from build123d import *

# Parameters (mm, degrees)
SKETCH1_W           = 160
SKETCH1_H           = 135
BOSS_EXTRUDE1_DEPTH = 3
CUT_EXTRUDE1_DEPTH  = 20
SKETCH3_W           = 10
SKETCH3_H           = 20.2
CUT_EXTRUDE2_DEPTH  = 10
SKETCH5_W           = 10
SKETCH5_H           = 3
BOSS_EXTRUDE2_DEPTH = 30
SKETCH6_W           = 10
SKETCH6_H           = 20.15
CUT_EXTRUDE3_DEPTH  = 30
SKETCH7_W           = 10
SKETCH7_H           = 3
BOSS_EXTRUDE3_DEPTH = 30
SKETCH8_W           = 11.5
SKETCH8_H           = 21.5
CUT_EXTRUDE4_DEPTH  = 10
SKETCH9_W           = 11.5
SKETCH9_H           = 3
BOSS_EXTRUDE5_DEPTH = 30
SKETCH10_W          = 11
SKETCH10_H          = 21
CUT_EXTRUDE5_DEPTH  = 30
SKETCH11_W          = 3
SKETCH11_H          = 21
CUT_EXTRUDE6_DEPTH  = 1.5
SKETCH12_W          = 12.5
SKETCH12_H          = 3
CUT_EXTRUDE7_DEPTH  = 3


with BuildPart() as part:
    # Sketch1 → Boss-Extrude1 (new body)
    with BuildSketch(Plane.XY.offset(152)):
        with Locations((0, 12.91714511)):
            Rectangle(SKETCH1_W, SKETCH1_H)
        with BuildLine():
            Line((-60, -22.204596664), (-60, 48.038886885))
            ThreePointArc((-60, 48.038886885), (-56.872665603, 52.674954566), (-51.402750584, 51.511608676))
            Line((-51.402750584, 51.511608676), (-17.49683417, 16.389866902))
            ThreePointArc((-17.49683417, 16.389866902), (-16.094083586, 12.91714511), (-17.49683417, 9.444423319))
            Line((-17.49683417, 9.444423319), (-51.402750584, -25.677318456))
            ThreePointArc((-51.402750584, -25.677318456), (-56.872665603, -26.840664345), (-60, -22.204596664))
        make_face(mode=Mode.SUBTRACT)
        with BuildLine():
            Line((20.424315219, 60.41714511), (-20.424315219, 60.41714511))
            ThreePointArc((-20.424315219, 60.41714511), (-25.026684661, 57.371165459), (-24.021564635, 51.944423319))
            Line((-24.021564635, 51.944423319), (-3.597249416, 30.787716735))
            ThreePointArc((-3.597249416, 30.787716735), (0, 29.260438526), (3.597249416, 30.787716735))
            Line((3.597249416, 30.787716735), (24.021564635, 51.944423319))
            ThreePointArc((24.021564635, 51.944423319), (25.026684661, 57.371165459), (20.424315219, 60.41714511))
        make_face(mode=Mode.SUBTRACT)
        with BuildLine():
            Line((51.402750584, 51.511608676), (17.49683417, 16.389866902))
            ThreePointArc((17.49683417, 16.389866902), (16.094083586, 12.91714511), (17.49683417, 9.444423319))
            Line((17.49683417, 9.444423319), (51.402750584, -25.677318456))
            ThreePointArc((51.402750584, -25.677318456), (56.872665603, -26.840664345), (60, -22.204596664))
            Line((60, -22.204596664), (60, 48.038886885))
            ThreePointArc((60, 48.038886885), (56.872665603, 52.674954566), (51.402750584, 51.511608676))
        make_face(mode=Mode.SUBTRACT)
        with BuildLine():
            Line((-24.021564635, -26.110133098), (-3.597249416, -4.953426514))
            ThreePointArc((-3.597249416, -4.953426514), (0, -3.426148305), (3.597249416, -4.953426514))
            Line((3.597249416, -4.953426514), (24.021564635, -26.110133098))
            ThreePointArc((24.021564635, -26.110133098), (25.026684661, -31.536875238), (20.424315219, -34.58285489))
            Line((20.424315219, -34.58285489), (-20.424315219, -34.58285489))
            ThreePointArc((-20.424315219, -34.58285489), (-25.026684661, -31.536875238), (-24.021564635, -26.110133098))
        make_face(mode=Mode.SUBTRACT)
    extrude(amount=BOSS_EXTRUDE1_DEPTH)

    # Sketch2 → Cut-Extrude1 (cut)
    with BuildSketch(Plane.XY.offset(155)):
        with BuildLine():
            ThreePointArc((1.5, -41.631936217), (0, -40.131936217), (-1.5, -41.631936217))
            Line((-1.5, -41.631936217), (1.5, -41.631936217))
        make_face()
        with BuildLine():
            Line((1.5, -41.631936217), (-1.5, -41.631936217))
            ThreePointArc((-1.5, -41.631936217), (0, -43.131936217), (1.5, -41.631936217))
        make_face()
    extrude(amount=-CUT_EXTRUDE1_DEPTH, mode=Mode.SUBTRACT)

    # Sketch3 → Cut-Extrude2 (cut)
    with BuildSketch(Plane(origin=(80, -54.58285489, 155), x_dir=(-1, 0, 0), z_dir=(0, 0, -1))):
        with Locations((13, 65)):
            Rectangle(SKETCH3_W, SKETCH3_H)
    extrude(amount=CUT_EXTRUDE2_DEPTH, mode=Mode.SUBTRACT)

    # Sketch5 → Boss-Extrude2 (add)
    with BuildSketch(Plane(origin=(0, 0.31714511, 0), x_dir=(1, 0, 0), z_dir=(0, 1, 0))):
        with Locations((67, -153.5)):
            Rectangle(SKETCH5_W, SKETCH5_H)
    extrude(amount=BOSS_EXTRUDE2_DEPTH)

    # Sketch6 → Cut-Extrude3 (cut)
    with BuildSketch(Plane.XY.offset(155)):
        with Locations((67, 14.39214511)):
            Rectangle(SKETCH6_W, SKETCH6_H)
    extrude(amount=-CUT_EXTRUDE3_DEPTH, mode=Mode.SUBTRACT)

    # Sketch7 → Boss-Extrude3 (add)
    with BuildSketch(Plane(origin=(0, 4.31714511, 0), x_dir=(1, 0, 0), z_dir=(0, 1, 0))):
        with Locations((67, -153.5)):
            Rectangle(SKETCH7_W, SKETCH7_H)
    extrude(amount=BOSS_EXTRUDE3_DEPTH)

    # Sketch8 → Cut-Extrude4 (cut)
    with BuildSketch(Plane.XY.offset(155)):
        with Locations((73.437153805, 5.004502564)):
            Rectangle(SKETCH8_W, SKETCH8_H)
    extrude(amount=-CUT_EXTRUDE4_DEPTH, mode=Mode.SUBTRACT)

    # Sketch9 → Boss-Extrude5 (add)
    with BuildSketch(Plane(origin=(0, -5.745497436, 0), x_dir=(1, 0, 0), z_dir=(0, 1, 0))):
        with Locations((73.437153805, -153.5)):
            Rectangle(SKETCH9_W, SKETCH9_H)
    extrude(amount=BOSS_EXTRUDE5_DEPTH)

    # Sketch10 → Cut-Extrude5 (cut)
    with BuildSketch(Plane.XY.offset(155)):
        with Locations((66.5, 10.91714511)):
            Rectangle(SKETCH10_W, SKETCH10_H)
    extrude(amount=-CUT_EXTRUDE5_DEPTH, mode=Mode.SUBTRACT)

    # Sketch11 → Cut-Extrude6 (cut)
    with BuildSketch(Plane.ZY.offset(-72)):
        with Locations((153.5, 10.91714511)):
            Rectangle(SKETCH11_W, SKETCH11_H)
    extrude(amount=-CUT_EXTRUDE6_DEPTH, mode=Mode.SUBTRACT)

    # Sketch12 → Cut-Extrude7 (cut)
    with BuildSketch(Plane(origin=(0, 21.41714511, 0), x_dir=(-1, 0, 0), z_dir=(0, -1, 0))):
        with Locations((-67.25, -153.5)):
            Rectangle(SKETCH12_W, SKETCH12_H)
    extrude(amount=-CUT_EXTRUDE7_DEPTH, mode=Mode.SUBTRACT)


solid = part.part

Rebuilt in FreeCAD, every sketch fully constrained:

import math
import FreeCAD as App
import Part
import Sketcher


def add_polygon(sketch, points):
    """Adds a closed chain of lines whose ends are joined by coincident constraints."""
    first, n = sketch.GeometryCount, len(points)
    for a, b in zip(points, points[1:] + points[:1]):
        sketch.addGeometry(Part.LineSegment(App.Vector(*a, 0), App.Vector(*b, 0)), False)
    for i in range(n):
        sketch.addConstraint(Sketcher.Constraint("Coincident", first + i, 2, first + (i + 1) % n, 1))

doc = App.newDocument("Part")
body = doc.addObject("PartDesign::Body", "Body")

sketch1 = body.newObject("Sketcher::SketchObject", "Sketch")
sketch1.AttachmentSupport = (doc.getObject("XY_Plane"), [""])
sketch1.MapMode = "FlatFace"
sketch1.AttachmentOffset = App.Placement(App.Vector(0, 0, 152), App.Rotation())
add_polygon(sketch1, [(-80, 80), (-80, -55), (80, -55), (80, 80)])
sketch1.addGeometry(Part.ArcOfCircle(Part.Circle(App.Vector(-20, -30, 0), App.Vector(0, 0, 1), 5), math.radians(136), math.radians(270)), False)
sketch1.addGeometry(Part.LineSegment(App.Vector(-24, -26, 0), App.Vector(-4, -5, 0)), False)
sketch1.addGeometry(Part.ArcOfCircle(Part.Circle(App.Vector(0, -8, 0), App.Vector(0, 0, 1), 5), math.radians(44), math.radians(136)), False)
sketch1.addGeometry(Part.LineSegment(App.Vector(4, -5, 0), App.Vector(24, -26, 0)), False)
sketch1.addGeometry(Part.ArcOfCircle(Part.Circle(App.Vector(20, -30, 0), App.Vector(0, 0, 1), 5), math.radians(-90), math.radians(44)), False)
sketch1.addGeometry(Part.LineSegment(App.Vector(20, -35, 0), App.Vector(-20, -35, 0)), False)
sketch1.addGeometry(Part.ArcOfCircle(Part.Circle(App.Vector(-55, -22, 0), App.Vector(0, 0, 1), 5), math.radians(180), math.radians(316)), False)
sketch1.addGeometry(Part.LineSegment(App.Vector(-60, -22, 0), App.Vector(-60, 48, 0)), False)
sketch1.addGeometry(Part.ArcOfCircle(Part.Circle(App.Vector(-55, 48, 0), App.Vector(0, 0, 1), 5), math.radians(44), math.radians(180)), False)
sketch1.addGeometry(Part.LineSegment(App.Vector(-51, 52, 0), App.Vector(-17, 16, 0)), False)
sketch1.addGeometry(Part.ArcOfCircle(Part.Circle(App.Vector(-21, 13, 0), App.Vector(0, 0, 1), 5), math.radians(-44), math.radians(44)), False)
sketch1.addGeometry(Part.LineSegment(App.Vector(-17, 9, 0), App.Vector(-51, -26, 0)), False)
sketch1.addGeometry(Part.LineSegment(App.Vector(-20, 60, 0), App.Vector(20, 60, 0)), False)
sketch1.addGeometry(Part.ArcOfCircle(Part.Circle(App.Vector(20, 55, 0), App.Vector(0, 0, 1), 5), math.radians(-44), math.radians(90)), False)
sketch1.addGeometry(Part.LineSegment(App.Vector(24, 52, 0), App.Vector(4, 31, 0)), False)
sketch1.addGeometry(Part.ArcOfCircle(Part.Circle(App.Vector(0, 34, 0), App.Vector(0, 0, 1), 5), math.radians(-136), math.radians(-44)), False)
sketch1.addGeometry(Part.LineSegment(App.Vector(-4, 31, 0), App.Vector(-24, 52, 0)), False)
sketch1.addGeometry(Part.ArcOfCircle(Part.Circle(App.Vector(-20, 55, 0), App.Vector(0, 0, 1), 5), math.radians(90), math.radians(224)), False)
sketch1.addGeometry(Part.LineSegment(App.Vector(17, 16, 0), App.Vector(51, 52, 0)), False)
sketch1.addGeometry(Part.ArcOfCircle(Part.Circle(App.Vector(55, 48, 0), App.Vector(0, 0, 1), 5), math.radians(0), math.radians(136)), False)
sketch1.addGeometry(Part.LineSegment(App.Vector(60, 48, 0), App.Vector(60, -22, 0)), False)
sketch1.addGeometry(Part.ArcOfCircle(Part.Circle(App.Vector(55, -22, 0), App.Vector(0, 0, 1), 5), math.radians(-136), math.radians(0)), False)
sketch1.addGeometry(Part.LineSegment(App.Vector(51, -26, 0), App.Vector(17, 9, 0)), False)
sketch1.addGeometry(Part.ArcOfCircle(Part.Circle(App.Vector(21, 13, 0), App.Vector(0, 0, 1), 5), math.radians(136), math.radians(224)), False)
sketch1.addConstraint([
    Sketcher.Constraint("Tangent", 4, 1, 5, 1),
    Sketcher.Constraint("Tangent", 5, 2, 6, 2),
    Sketcher.Constraint("Tangent", 6, 1, 7, 1),
    Sketcher.Constraint("Tangent", 7, 2, 8, 2),
    Sketcher.Constraint("Tangent", 8, 1, 9, 1),
    Sketcher.Constraint("Tangent", 9, 2, 4, 2),
    Sketcher.Constraint("Tangent", 10, 1, 11, 1),
    Sketcher.Constraint("Tangent", 11, 2, 12, 2),
    Sketcher.Constraint("Tangent", 12, 1, 13, 1),
    Sketcher.Constraint("Tangent", 13, 2, 14, 2),
    Sketcher.Constraint("Tangent", 14, 1, 15, 1),
    Sketcher.Constraint("Tangent", 15, 2, 10, 2),
    Sketcher.Constraint("Tangent", 16, 2, 17, 2),
    Sketcher.Constraint("Tangent", 17, 1, 18, 1),
    Sketcher.Constraint("Tangent", 18, 2, 19, 2),
    Sketcher.Constraint("Tangent", 19, 1, 20, 1),
    Sketcher.Constraint("Tangent", 20, 2, 21, 2),
    Sketcher.Constraint("Tangent", 21, 1, 16, 1),
    Sketcher.Constraint("Tangent", 22, 2, 23, 2),
    Sketcher.Constraint("Tangent", 23, 1, 24, 1),
    Sketcher.Constraint("Tangent", 24, 2, 25, 2),
    Sketcher.Constraint("Tangent", 25, 1, 26, 1),
    Sketcher.Constraint("Tangent", 26, 2, 27, 2),
    Sketcher.Constraint("Tangent", 27, 1, 22, 1),
    Sketcher.Constraint("Vertical", 0),
    Sketcher.Constraint("Horizontal", 1),
    Sketcher.Constraint("Vertical", 2),
    Sketcher.Constraint("Horizontal", 3),
    Sketcher.Constraint("Horizontal", 9),
    Sketcher.Constraint("Vertical", 11),
    Sketcher.Constraint("Horizontal", 16),
    Sketcher.Constraint("Vertical", 24),
    Sketcher.Constraint("Equal", 4, 6),
    Sketcher.Constraint("Equal", 6, 8),
    Sketcher.Constraint("Equal", 8, 10),
    Sketcher.Constraint("Equal", 10, 12),
    Sketcher.Constraint("Equal", 12, 14),
    Sketcher.Constraint("Equal", 14, 17),
    Sketcher.Constraint("Equal", 17, 19),
    Sketcher.Constraint("Equal", 19, 21),
    Sketcher.Constraint("Equal", 21, 23),
    Sketcher.Constraint("Equal", 23, 25),
    Sketcher.Constraint("Equal", 25, 27),
    Sketcher.Constraint("Symmetric", 12, 3, 23, 3, -2),
    Sketcher.Constraint("Symmetric", 14, 3, 27, 3, -2),
    Sketcher.Constraint("Symmetric", 5, 2, 6, 1, -2),
    Sketcher.Constraint("Symmetric", 18, 2, 19, 1, -2),
    Sketcher.Constraint("Parallel", 7, 13),
    Sketcher.Constraint("Parallel", 5, 15),
    Sketcher.Constraint("Parallel", 15, 18),
    Sketcher.Constraint("Parallel", 20, 26),
    Sketcher.Constraint("Vertical", 8, 3, 17, 3),
    Sketcher.Constraint("Radius", 4, 5.0),
    Sketcher.Constraint("DistanceX", 1, 1, 1, 2, 160.0),
    Sketcher.Constraint("DistanceY", 0, 2, 0, 1, 135.0),
    Sketcher.Constraint("DistanceX", 10, 3, -1, 1, 55.0),
    Sketcher.Constraint("DistanceX", 0, 2, -1, 1, 80.0),
    Sketcher.Constraint("DistanceY", 8, 3, 17, 3, 85.0),
    Sketcher.Constraint("DistanceY", 0, 2, 4, 3, 25.0),
    Sketcher.Constraint("DistanceY", 4, 3, 14, 3, 42.5),
    Sketcher.Constraint("DistanceX", 9, 2, 9, 1, 40.84863),
    Sketcher.Constraint("DistanceX", 14, 3, 8, 3, 41.518399),
    Sketcher.Constraint("DistanceX", 5, 2, 6, 1, 7.194499),
    Sketcher.Constraint("DistanceY", 6, 3, -1, 1, 8.426148),
])
pad1 = body.newObject("PartDesign::Pad", "Pad")
pad1.Profile = sketch1
pad1.Length = 3

sketch2 = body.newObject("Sketcher::SketchObject", "Sketch001")
sketch2.AttachmentSupport = (doc.getObject("XY_Plane"), [""])
sketch2.MapMode = "FlatFace"
sketch2.AttachmentOffset = App.Placement(App.Vector(0, 0, 155), App.Rotation())
sketch2.addGeometry(Part.Circle(App.Vector(0, -41.6, 0), App.Vector(0, 0, 1), 1.5), False)
sketch2.addConstraint([
    Sketcher.Constraint("PointOnObject", 0, 3, -2),
    Sketcher.Constraint("Diameter", 0, 3.0),
    Sketcher.Constraint("DistanceY", 0, 3, -1, 1, 41.631936),
])
pocket1 = body.newObject("PartDesign::Pocket", "Pocket")
pocket1.Profile = sketch2
pocket1.Length = 20

sketch3 = body.newObject("Sketcher::SketchObject", "Sketch002")
sketch3.AttachmentSupport = (doc.getObject("XY_Plane"), [""])
sketch3.MapMode = "FlatFace"
sketch3.AttachmentOffset = App.Placement(App.Vector(0, 0, 155), App.Rotation())
add_polygon(sketch3, [(72, 21), (72, 0), (62, 0), (62, 21)])
sketch3.addConstraint([
    Sketcher.Constraint("Vertical", 0),
    Sketcher.Constraint("Horizontal", 1),
    Sketcher.Constraint("Vertical", 2),
    Sketcher.Constraint("Horizontal", 3),
    Sketcher.Constraint("DistanceX", 1, 2, 1, 1, 10.0),
    Sketcher.Constraint("DistanceY", 0, 2, 0, 1, 20.2),
    Sketcher.Constraint("DistanceX", -1, 1, 0, 2, 72.0),
    Sketcher.Constraint("DistanceY", -1, 1, 0, 2, 0.317145),
])
pocket2 = body.newObject("PartDesign::Pocket", "Pocket001")
pocket2.Profile = sketch3
pocket2.Length = 10

sketch4 = body.newObject("Sketcher::SketchObject", "Sketch003")
sketch4.AttachmentSupport = (doc.getObject("XZ_Plane"), [""])
sketch4.MapMode = "FlatFace"
sketch4.AttachmentOffset = App.Placement(App.Vector(0, 0, -0.317145), App.Rotation())
add_polygon(sketch4, [(62, 152), (62, 155), (72, 155), (72, 152)])
sketch4.addConstraint([
    Sketcher.Constraint("Vertical", 0),
    Sketcher.Constraint("Horizontal", 1),
    Sketcher.Constraint("Vertical", 2),
    Sketcher.Constraint("Horizontal", 3),
    Sketcher.Constraint("DistanceX", 1, 1, 1, 2, 10.0),
    Sketcher.Constraint("DistanceY", 0, 1, 0, 2, 3.0),
    Sketcher.Constraint("DistanceX", -1, 1, 0, 2, 62.0),
    Sketcher.Constraint("DistanceY", -1, 1, 0, 2, 155.0),
])
pad2 = body.newObject("PartDesign::Pad", "Pad001")
pad2.Profile = sketch4
pad2.Length = 30
pad2.Reversed = True

sketch5 = body.newObject("Sketcher::SketchObject", "Sketch004")
sketch5.AttachmentSupport = (doc.getObject("XY_Plane"), [""])
sketch5.MapMode = "FlatFace"
sketch5.AttachmentOffset = App.Placement(App.Vector(0, 0, 155), App.Rotation())
add_polygon(sketch5, [(62, 24), (62, 4), (72, 4), (72, 24)])
sketch5.addConstraint([
    Sketcher.Constraint("Vertical", 0),
    Sketcher.Constraint("Horizontal", 1),
    Sketcher.Constraint("Vertical", 2),
    Sketcher.Constraint("Horizontal", 3),
    Sketcher.Constraint("DistanceX", 1, 1, 1, 2, 10.0),
    Sketcher.Constraint("DistanceX", -1, 1, 0, 2, 62.0),
    Sketcher.Constraint("DistanceY", 0, 2, 0, 1, 20.15),
    Sketcher.Constraint("DistanceY", -1, 1, 0, 2, 4.317145),
])
pocket3 = body.newObject("PartDesign::Pocket", "Pocket002")
pocket3.Profile = sketch5
pocket3.Length = 30

sketch6 = body.newObject("Sketcher::SketchObject", "Sketch005")
sketch6.AttachmentSupport = (doc.getObject("XZ_Plane"), [""])
sketch6.MapMode = "FlatFace"
sketch6.AttachmentOffset = App.Placement(App.Vector(0, 0, -4.317145), App.Rotation())
add_polygon(sketch6, [(62, 152), (62, 155), (72, 155), (72, 152)])
sketch6.addConstraint([
    Sketcher.Constraint("Vertical", 0),
    Sketcher.Constraint("Horizontal", 1),
    Sketcher.Constraint("Vertical", 2),
    Sketcher.Constraint("Horizontal", 3),
    Sketcher.Constraint("DistanceX", 1, 1, 1, 2, 10.0),
    Sketcher.Constraint("DistanceY", 0, 1, 0, 2, 3.0),
    Sketcher.Constraint("DistanceX", -1, 1, 0, 2, 62.0),
    Sketcher.Constraint("DistanceY", -1, 1, 0, 2, 155.0),
])
pad3 = body.newObject("PartDesign::Pad", "Pad002")
pad3.Profile = sketch6
pad3.Length = 30
pad3.Reversed = True

sketch7 = body.newObject("Sketcher::SketchObject", "Sketch006")
sketch7.AttachmentSupport = (doc.getObject("XY_Plane"), [""])
sketch7.MapMode = "FlatFace"
sketch7.AttachmentOffset = App.Placement(App.Vector(0, 0, 155), App.Rotation())
add_polygon(sketch7, [(68, 16), (68, -6), (79, -6), (79, 16)])
sketch7.addConstraint([
    Sketcher.Constraint("Vertical", 0),
    Sketcher.Constraint("Horizontal", 1),
    Sketcher.Constraint("Vertical", 2),
    Sketcher.Constraint("Horizontal", 3),
    Sketcher.Constraint("DistanceX", 1, 1, 1, 2, 11.5),
    Sketcher.Constraint("DistanceY", 0, 2, 0, 1, 21.5),
    Sketcher.Constraint("DistanceX", -1, 1, 0, 2, 67.687154),
    Sketcher.Constraint("DistanceY", 0, 2, -1, 1, 5.745497),
])
pocket4 = body.newObject("PartDesign::Pocket", "Pocket003")
pocket4.Profile = sketch7
pocket4.Length = 10

sketch8 = body.newObject("Sketcher::SketchObject", "Sketch007")
sketch8.AttachmentSupport = (doc.getObject("XZ_Plane"), [""])
sketch8.MapMode = "FlatFace"
sketch8.AttachmentOffset = App.Placement(App.Vector(0, 0, 5.745497), App.Rotation())
add_polygon(sketch8, [(67.7, 152), (67.7, 155), (79.2, 155), (79.2, 152)])
sketch8.addConstraint([
    Sketcher.Constraint("Vertical", 0),
    Sketcher.Constraint("Horizontal", 1),
    Sketcher.Constraint("Vertical", 2),
    Sketcher.Constraint("Horizontal", 3),
    Sketcher.Constraint("DistanceY", 0, 1, 0, 2, 3.0),
    Sketcher.Constraint("DistanceX", 1, 1, 1, 2, 11.5),
    Sketcher.Constraint("DistanceY", -1, 1, 0, 2, 155.0),
    Sketcher.Constraint("DistanceX", -1, 1, 0, 2, 67.687154),
])
pad4 = body.newObject("PartDesign::Pad", "Pad003")
pad4.Profile = sketch8
pad4.Length = 30
pad4.Reversed = True

sketch9 = body.newObject("Sketcher::SketchObject", "Sketch008")
sketch9.AttachmentSupport = (doc.getObject("XY_Plane"), [""])
sketch9.MapMode = "FlatFace"
sketch9.AttachmentOffset = App.Placement(App.Vector(0, 0, 155), App.Rotation())
add_polygon(sketch9, [(61, 21), (61, 0), (72, 0), (72, 21)])
sketch9.addConstraint([
    Sketcher.Constraint("Vertical", 0),
    Sketcher.Constraint("Horizontal", 1),
    Sketcher.Constraint("Vertical", 2),
    Sketcher.Constraint("Horizontal", 3),
    Sketcher.Constraint("DistanceX", 1, 1, 1, 2, 11.0),
    Sketcher.Constraint("DistanceY", 0, 2, 0, 1, 21.0),
    Sketcher.Constraint("DistanceX", -1, 1, 0, 2, 61.0),
    Sketcher.Constraint("DistanceY", -1, 1, 0, 2, 0.417145),
])
pocket5 = body.newObject("PartDesign::Pocket", "Pocket004")
pocket5.Profile = sketch9
pocket5.Length = 30

sketch10 = body.newObject("Sketcher::SketchObject", "Sketch009")
sketch10.AttachmentSupport = (doc.getObject("YZ_Plane"), [""])
sketch10.MapMode = "FlatFace"
sketch10.AttachmentOffset = App.Placement(App.Vector(0, 0, 72), App.Rotation())
add_polygon(sketch10, [(21.4, 152), (0.4, 152), (0.4, 155), (21.4, 155)])
sketch10.addConstraint([
    Sketcher.Constraint("Horizontal", 0),
    Sketcher.Constraint("Vertical", 1),
    Sketcher.Constraint("Horizontal", 2),
    Sketcher.Constraint("Vertical", 3),
    Sketcher.Constraint("DistanceX", 0, 2, 0, 1, 21.0),
    Sketcher.Constraint("DistanceY", 1, 1, 1, 2, 3.0),
    Sketcher.Constraint("DistanceY", -1, 1, 0, 2, 152.0),
    Sketcher.Constraint("DistanceX", -1, 1, 0, 2, 0.417145),
])
pocket6 = body.newObject("PartDesign::Pocket", "Pocket005")
pocket6.Profile = sketch10
pocket6.Length = 1.5
pocket6.Reversed = True

sketch11 = body.newObject("Sketcher::SketchObject", "Sketch010")
sketch11.AttachmentSupport = (doc.getObject("XZ_Plane"), [""])
sketch11.MapMode = "FlatFace"
sketch11.AttachmentOffset = App.Placement(App.Vector(0, 0, -21.417145), App.Rotation())
add_polygon(sketch11, [(73.5, 152), (73.5, 155), (61, 155), (61, 152)])
sketch11.addConstraint([
    Sketcher.Constraint("Vertical", 0),
    Sketcher.Constraint("Horizontal", 1),
    Sketcher.Constraint("Vertical", 2),
    Sketcher.Constraint("Horizontal", 3),
    Sketcher.Constraint("DistanceY", 0, 1, 0, 2, 3.0),
    Sketcher.Constraint("DistanceX", 1, 2, 1, 1, 12.5),
    Sketcher.Constraint("DistanceY", -1, 1, 0, 2, 155.0),
    Sketcher.Constraint("DistanceX", -1, 1, 1, 2, 61.0),
])
pocket7 = body.newObject("PartDesign::Pocket", "Pocket006")
pocket7.Profile = sketch11
pocket7.Length = 3

doc.recompute()
